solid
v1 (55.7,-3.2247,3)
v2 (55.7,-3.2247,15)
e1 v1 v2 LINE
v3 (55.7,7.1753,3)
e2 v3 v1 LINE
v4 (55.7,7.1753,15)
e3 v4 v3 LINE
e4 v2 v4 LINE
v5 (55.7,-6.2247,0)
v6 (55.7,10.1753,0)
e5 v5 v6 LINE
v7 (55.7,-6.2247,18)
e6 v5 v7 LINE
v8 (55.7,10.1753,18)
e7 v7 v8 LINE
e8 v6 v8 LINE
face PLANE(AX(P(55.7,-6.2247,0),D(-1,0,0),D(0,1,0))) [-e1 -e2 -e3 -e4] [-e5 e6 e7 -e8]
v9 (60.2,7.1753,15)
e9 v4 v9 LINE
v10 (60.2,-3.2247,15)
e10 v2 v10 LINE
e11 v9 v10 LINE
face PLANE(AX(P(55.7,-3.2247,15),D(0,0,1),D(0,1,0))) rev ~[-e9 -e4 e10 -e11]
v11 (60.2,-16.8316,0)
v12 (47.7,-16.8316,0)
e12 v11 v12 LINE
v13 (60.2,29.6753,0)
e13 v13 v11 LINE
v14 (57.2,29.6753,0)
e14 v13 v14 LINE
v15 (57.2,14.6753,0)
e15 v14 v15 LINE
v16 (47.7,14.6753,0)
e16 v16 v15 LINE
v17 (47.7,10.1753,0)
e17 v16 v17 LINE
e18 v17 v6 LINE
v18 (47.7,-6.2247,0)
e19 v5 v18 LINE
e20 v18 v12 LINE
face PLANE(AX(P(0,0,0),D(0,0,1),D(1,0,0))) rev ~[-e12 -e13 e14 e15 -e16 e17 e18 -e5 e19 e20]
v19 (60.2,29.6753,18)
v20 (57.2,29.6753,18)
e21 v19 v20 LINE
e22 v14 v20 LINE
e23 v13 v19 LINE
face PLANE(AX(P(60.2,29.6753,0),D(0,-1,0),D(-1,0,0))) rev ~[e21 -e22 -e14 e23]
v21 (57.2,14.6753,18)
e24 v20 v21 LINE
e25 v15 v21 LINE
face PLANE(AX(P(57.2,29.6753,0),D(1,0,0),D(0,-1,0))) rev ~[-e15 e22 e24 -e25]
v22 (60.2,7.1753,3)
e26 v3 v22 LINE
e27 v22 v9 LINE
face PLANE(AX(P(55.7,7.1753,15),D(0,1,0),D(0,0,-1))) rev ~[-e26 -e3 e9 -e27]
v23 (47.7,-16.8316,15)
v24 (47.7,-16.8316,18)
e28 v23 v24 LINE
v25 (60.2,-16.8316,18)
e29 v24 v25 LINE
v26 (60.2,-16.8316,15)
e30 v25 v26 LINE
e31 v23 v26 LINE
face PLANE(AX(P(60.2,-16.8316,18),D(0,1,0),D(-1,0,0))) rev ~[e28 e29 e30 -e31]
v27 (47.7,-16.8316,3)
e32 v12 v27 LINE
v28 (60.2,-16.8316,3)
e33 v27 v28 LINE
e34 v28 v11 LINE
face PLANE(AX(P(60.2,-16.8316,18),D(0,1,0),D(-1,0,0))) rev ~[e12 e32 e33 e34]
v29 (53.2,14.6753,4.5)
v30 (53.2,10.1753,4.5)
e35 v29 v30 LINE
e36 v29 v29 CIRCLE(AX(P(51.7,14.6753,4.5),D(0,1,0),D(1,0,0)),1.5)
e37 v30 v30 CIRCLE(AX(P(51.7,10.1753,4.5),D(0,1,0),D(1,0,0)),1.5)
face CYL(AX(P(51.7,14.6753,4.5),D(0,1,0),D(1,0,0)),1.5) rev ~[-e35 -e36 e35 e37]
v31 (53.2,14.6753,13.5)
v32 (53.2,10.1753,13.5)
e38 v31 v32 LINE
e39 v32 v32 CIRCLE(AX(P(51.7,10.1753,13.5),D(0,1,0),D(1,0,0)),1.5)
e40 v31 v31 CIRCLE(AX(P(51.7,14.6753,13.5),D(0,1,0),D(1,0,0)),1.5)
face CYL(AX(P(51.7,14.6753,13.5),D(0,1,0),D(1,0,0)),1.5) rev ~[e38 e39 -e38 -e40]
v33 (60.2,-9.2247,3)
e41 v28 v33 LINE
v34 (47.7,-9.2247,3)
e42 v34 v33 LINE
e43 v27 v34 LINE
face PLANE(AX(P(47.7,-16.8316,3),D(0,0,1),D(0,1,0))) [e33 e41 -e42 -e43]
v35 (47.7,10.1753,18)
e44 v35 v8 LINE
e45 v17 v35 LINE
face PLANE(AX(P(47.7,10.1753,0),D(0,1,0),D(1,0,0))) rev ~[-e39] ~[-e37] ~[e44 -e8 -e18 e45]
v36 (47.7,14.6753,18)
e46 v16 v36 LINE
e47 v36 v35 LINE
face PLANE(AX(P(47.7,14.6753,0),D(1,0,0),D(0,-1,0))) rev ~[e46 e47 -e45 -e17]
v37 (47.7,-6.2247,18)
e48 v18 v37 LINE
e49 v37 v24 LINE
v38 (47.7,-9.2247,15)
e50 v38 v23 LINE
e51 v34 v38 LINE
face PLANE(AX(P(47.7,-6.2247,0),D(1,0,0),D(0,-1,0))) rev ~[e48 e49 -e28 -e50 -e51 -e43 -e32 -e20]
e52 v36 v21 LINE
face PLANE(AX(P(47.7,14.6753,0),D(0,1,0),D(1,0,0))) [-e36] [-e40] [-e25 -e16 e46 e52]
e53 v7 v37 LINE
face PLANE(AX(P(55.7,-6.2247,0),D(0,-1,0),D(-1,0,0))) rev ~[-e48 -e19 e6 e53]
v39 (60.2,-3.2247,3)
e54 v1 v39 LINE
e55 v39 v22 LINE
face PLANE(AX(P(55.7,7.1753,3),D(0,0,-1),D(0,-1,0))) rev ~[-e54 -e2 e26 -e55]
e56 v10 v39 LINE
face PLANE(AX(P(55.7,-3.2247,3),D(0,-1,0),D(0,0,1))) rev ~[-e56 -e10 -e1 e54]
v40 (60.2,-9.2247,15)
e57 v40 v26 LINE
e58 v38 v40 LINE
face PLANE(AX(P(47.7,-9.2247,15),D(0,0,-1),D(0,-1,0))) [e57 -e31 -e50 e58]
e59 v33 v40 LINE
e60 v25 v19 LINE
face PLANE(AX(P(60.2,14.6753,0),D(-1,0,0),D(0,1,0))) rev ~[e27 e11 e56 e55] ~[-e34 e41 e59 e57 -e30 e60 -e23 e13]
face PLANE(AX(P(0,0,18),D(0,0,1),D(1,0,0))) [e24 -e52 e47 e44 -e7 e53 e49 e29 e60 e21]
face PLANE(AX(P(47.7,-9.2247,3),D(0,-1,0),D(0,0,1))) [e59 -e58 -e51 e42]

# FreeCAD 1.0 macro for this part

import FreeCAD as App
import Part
import Sketcher

V = App.Vector

doc = App.newDocument("Part")
body = doc.addObject("PartDesign::Body", "Body")

sketch1 = doc.addObject("Sketcher::SketchObject", "Sketch")
body.addObject(sketch1)
sketch1.AttachmentSupport = (doc.XY_Plane, [""])
sketch1.MapMode = "FlatFace"
sketch1.addGeometry([
    Part.LineSegment(V(47.7, 14.6753, 0), V(47.7, 10.1753, 0)),
    Part.LineSegment(V(47.7, 10.1753, 0), V(55.7, 10.1753, 0)),
    Part.LineSegment(V(55.7, 10.1753, 0), V(55.7, -6.2247, 0)),
    Part.LineSegment(V(55.7, -6.2247, 0), V(47.7, -6.2247, 0)),
    Part.LineSegment(V(47.7, -6.2247, 0), V(47.7, -16.8316, 0)),
    Part.LineSegment(V(47.7, -16.8316, 0), V(55.7, -16.8316, 0)),
    Part.LineSegment(V(55.7, -16.8316, 0), V(55.7, -33.2316, 0)),
    Part.LineSegment(V(55.7, -33.2316, 0), V(47.7, -33.2316, 0)),
    Part.LineSegment(V(47.7, -33.2316, 0), V(47.7, -37.7316, 0)),
    Part.LineSegment(V(47.7, -37.7316, 0), V(60.2, -37.7316, 0)),
    Part.LineSegment(V(60.2, -37.7316, 0), V(60.2, 29.6753, 0)),
    Part.LineSegment(V(60.2, 29.6753, 0), V(57.2, 29.6753, 0)),
    Part.LineSegment(V(57.2, 29.6753, 0), V(57.2, 14.6753, 0)),
    Part.LineSegment(V(57.2, 14.6753, 0), V(47.7, 14.6753, 0)),
], False)
sketch1.addConstraint([
    Sketcher.Constraint("Coincident", 0, 2, 1, 1),
    Sketcher.Constraint("Coincident", 1, 2, 2, 1),
    Sketcher.Constraint("Coincident", 2, 2, 3, 1),
    Sketcher.Constraint("Coincident", 3, 2, 4, 1),
    Sketcher.Constraint("Coincident", 4, 2, 5, 1),
    Sketcher.Constraint("Coincident", 5, 2, 6, 1),
    Sketcher.Constraint("Coincident", 6, 2, 7, 1),
    Sketcher.Constraint("Coincident", 7, 2, 8, 1),
    Sketcher.Constraint("Coincident", 8, 2, 9, 1),
    Sketcher.Constraint("Coincident", 9, 2, 10, 1),
    Sketcher.Constraint("Coincident", 10, 2, 11, 1),
    Sketcher.Constraint("Coincident", 11, 2, 12, 1),
    Sketcher.Constraint("Coincident", 12, 2, 13, 1),
    Sketcher.Constraint("Coincident", 13, 2, 0, 1),
    Sketcher.Constraint("Vertical", 0),
    Sketcher.Constraint("Horizontal", 1),
    Sketcher.Constraint("Vertical", 2),
    Sketcher.Constraint("Horizontal", 3),
    Sketcher.Constraint("Vertical", 4),
    Sketcher.Constraint("Horizontal", 5),
    Sketcher.Constraint("Vertical", 6),
    Sketcher.Constraint("Horizontal", 7),
    Sketcher.Constraint("Vertical", 8),
    Sketcher.Constraint("Horizontal", 9),
    Sketcher.Constraint("Vertical", 10),
    Sketcher.Constraint("Horizontal", 11),
    Sketcher.Constraint("Vertical", 12),
    Sketcher.Constraint("Horizontal", 13),
    Sketcher.Constraint("Vertical", 0, 2, 3, 2),
    Sketcher.Constraint("Vertical", 2, 2, 5, 2),
    Sketcher.Constraint("Vertical", 4, 2, 7, 2),
    Sketcher.Constraint("Equal", 2, 6),
    Sketcher.Constraint("Equal", 0, 8),
    Sketcher.Constraint("DistanceX", 1, 1, 1, 2, 8.0),
    Sketcher.Constraint("DistanceX", 11, 2, 11, 1, 3.0),
    Sketcher.Constraint("DistanceY", 12, 2, 12, 1, 15.0),
    Sketcher.Constraint("DistanceX", 9, 1, 9, 2, 12.5),
    Sketcher.Constraint("DistanceY", 0, 2, 0, 1, 4.5),
    Sketcher.Constraint("DistanceY", 2, 2, 2, 1, 16.4),
    Sketcher.Constraint("DistanceX", -1, 1, 0, 2, 47.7),
    Sketcher.Constraint("DistanceY", 4, 2, 4, 1, 10.607),
    Sketcher.Constraint("DistanceY", -1, 1, 0, 2, 10.1753),
])
pad1 = doc.addObject("PartDesign::Pad", "Pad")
body.addObject(pad1)
pad1.Profile = sketch1
pad1.Length = 18

sketch2 = doc.addObject("Sketcher::SketchObject", "Sketch001")
body.addObject(sketch2)
sketch2.AttachmentSupport = (doc.XY_Plane, [""])
sketch2.MapMode = "FlatFace"
sketch2.AttachmentOffset = App.Placement(V(0, 0, 18), App.Rotation())
sketch2.addGeometry([
    Part.LineSegment(V(60.2, -37.7316, 0), V(60.2, -16.8316, 0)),
    Part.LineSegment(V(60.2, -16.8316, 0), V(47.7, -16.8316, 0)),
    Part.LineSegment(V(47.7, -16.8316, 0), V(47.7, -37.7316, 0)),
    Part.LineSegment(V(47.7, -37.7316, 0), V(60.2, -37.7316, 0)),
], False)
sketch2.addConstraint([
    Sketcher.Constraint("Coincident", 0, 2, 1, 1),
    Sketcher.Constraint("Coincident", 1, 2, 2, 1),
    Sketcher.Constraint("Coincident", 2, 2, 3, 1),
    Sketcher.Constraint("Coincident", 3, 2, 0, 1),
    Sketcher.Constraint("Vertical", 0),
    Sketcher.Constraint("Horizontal", 1),
    Sketcher.Constraint("Vertical", 2),
    Sketcher.Constraint("Horizontal", 3),
    Sketcher.Constraint("DistanceX", 1, 2, 1, 1, 12.5),
    Sketcher.Constraint("DistanceY", 0, 1, 0, 2, 20.9),
    Sketcher.Constraint("DistanceX", -1, 1, 0, 2, 60.2),
    Sketcher.Constraint("DistanceY", 0, 2, -1, 1, 16.8316),
])
pocket1 = doc.addObject("PartDesign::Pocket", "Pocket")
body.addObject(pocket1)
pocket1.Profile = sketch2
pocket1.Length = 18

sketch3 = doc.addObject("Sketcher::SketchObject", "Sketch002")
body.addObject(sketch3)
sketch3.AttachmentSupport = (doc.XZ_Plane, [""])
sketch3.MapMode = "FlatFace"
sketch3.AttachmentOffset = App.Placement(V(0, 0, -14.6753), App.Rotation())
sketch3.addGeometry([
    Part.Circle(V(51.7, 4.5, 0), V(0, 0, 1), 1.5),
    Part.Circle(V(51.7, 13.5, 0), V(0, 0, 1), 1.5),
], False)
sketch3.addConstraint([
    Sketcher.Constraint("Equal", 0, 1),
    Sketcher.Constraint("Vertical", 0, 3, 1, 3),
    Sketcher.Constraint("Diameter", 0, 3.0),
    Sketcher.Constraint("DistanceY", 0, 3, 1, 3, 9.0),
    Sketcher.Constraint("DistanceX", -1, 1, 0, 3, 51.7),
    Sketcher.Constraint("DistanceY", -1, 1, 0, 3, 4.5),
])
pocket2 = doc.addObject("PartDesign::Pocket", "Pocket001")
body.addObject(pocket2)
pocket2.Profile = sketch3
pocket2.Length = 4.5
pocket2.Reversed = True

sketch4 = doc.addObject("Sketcher::SketchObject", "Sketch003")
body.addObject(sketch4)
sketch4.AttachmentSupport = (doc.YZ_Plane, [""])
sketch4.MapMode = "FlatFace"
sketch4.AttachmentOffset = App.Placement(V(0, 0, 47.7), App.Rotation())
sketch4.addGeometry([
    Part.LineSegment(V(-16.8316, 15, 0), V(-9.2247, 15, 0)),
    Part.LineSegment(V(-9.2247, 15, 0), V(-9.2247, 3, 0)),
    Part.LineSegment(V(-9.2247, 3, 0), V(-16.8316, 3, 0)),
    Part.LineSegment(V(-16.8316, 3, 0), V(-16.8316, 15, 0)),
], False)
sketch4.addConstraint([
    Sketcher.Constraint("Coincident", 0, 2, 1, 1),
    Sketcher.Constraint("Coincident", 1, 2, 2, 1),
    Sketcher.Constraint("Coincident", 2, 2, 3, 1),
    Sketcher.Constraint("Coincident", 3, 2, 0, 1),
    Sketcher.Constraint("Horizontal", 0),
    Sketcher.Constraint("Vertical", 1),
    Sketcher.Constraint("Horizontal", 2),
    Sketcher.Constraint("Vertical", 3),
    Sketcher.Constraint("DistanceY", 1, 2, 1, 1, 12.0),
    Sketcher.Constraint("DistanceY", -1, 1, 0, 2, 15.0),
    Sketcher.Constraint("DistanceX", 0, 1, 0, 2, 7.607),
    Sketcher.Constraint("DistanceX", 0, 2, -1, 1, 9.2247),
])
pocket3 = doc.addObject("PartDesign::Pocket", "Pocket002")
body.addObject(pocket3)
pocket3.Profile = sketch4
pocket3.Length = 20
pocket3.Reversed = True

sketch5 = doc.addObject("Sketcher::SketchObject", "Sketch004")
body.addObject(sketch5)
sketch5.AttachmentSupport = (doc.YZ_Plane, [""])
sketch5.MapMode = "FlatFace"
sketch5.AttachmentOffset = App.Placement(V(0, 0, 55.7), App.Rotation())
sketch5.addGeometry([
    Part.LineSegment(V(7.1753, 15, 0), V(7.1753, 3, 0)),
    Part.LineSegment(V(7.1753, 3, 0), V(-3.2247, 3, 0)),
    Part.LineSegment(V(-3.2247, 3, 0), V(-3.2247, 15, 0)),
    Part.LineSegment(V(-3.2247, 15, 0), V(7.1753, 15, 0)),
], False)
sketch5.addConstraint([
    Sketcher.Constraint("Coincident", 0, 2, 1, 1),
    Sketcher.Constraint("Coincident", 1, 2, 2, 1),
    Sketcher.Constraint("Coincident", 2, 2, 3, 1),
    Sketcher.Constraint("Coincident", 3, 2, 0, 1),
    Sketcher.Constraint("Vertical", 0),
    Sketcher.Constraint("Horizontal", 1),
    Sketcher.Constraint("Vertical", 2),
    Sketcher.Constraint("Horizontal", 3),
    Sketcher.Constraint("DistanceY", -1, 1, 0, 2, 3.0),
    Sketcher.Constraint("DistanceY", 0, 2, 0, 1, 12.0),
    Sketcher.Constraint("DistanceX", 1, 2, 1, 1, 10.4),
    Sketcher.Constraint("DistanceX", -1, 1, 0, 2, 7.1753),
])
pocket4 = doc.addObject("PartDesign::Pocket", "Pocket003")
body.addObject(pocket4)
pocket4.Profile = sketch5
pocket4.Type = "UpToFirst"
pocket4.Reversed = True

doc.recompute()
